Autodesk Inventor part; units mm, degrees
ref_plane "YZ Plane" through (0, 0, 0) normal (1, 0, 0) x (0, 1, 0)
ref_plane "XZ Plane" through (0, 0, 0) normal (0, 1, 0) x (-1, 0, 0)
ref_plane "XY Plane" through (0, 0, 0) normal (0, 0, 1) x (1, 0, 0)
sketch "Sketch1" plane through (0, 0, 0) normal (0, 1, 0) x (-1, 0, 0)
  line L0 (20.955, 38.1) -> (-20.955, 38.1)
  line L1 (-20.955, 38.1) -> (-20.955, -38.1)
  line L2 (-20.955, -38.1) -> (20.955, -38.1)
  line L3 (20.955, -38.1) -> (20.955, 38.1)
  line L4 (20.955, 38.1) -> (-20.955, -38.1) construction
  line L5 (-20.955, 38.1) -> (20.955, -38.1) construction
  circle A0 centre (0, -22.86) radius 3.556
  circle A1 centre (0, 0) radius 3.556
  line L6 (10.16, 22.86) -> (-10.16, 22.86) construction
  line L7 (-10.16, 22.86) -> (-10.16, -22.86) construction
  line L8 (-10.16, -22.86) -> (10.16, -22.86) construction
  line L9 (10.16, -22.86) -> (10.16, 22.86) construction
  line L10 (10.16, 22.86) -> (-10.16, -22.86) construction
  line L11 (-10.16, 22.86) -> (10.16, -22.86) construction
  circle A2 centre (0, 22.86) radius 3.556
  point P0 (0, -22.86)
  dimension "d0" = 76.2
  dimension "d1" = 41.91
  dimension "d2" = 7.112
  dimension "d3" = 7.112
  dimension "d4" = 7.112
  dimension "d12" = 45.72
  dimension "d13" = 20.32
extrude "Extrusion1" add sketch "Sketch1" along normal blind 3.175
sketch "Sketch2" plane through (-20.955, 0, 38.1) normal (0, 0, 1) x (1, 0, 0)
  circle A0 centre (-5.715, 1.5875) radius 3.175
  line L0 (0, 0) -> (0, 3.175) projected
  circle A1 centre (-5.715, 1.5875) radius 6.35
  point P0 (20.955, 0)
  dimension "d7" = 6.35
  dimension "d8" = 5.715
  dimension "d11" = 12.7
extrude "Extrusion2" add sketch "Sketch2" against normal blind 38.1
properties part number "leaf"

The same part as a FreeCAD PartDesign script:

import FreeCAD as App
import Part
import Sketcher
from FreeCAD import Vector
Q = App.Units.Quantity

doc = App.newDocument("Part")
body = doc.addObject("PartDesign::Body", "Body")

sketch1 = doc.addObject("Sketcher::SketchObject", "Sketch")
body.addObject(sketch1)
sketch1.AttachmentSupport = (doc.XZ_Plane, [""])
sketch1.MapMode = "FlatFace"
sketch1.addGeometry([
    Part.LineSegment(Vector(-21, -38.1, 0), Vector(-21, 38.1, 0)),
    Part.LineSegment(Vector(-21, 38.1, 0), Vector(21, 38.1, 0)),
    Part.LineSegment(Vector(21, 38.1, 0), Vector(21, -38.1, 0)),
    Part.LineSegment(Vector(21, -38.1, 0), Vector(-21, -38.1, 0)),
    Part.Circle(Vector(0, -22.9, 0), Vector(0, 0, 1), 3.6),
    Part.Circle(Vector(0, 0, 0), Vector(0, 0, 1), 3.6),
    Part.Circle(Vector(0, 22.9, 0), Vector(0, 0, 1), 3.6),
], False)
sketch1.addConstraint([
    Sketcher.Constraint("Coincident", 0, 2, 1, 1),
    Sketcher.Constraint("Coincident", 1, 2, 2, 1),
    Sketcher.Constraint("Coincident", 2, 2, 3, 1),
    Sketcher.Constraint("Coincident", 3, 2, 0, 1),
    Sketcher.Constraint("Vertical", 0),
    Sketcher.Constraint("Horizontal", 1),
    Sketcher.Constraint("Vertical", 2),
    Sketcher.Constraint("Horizontal", 3),
    Sketcher.Constraint("Coincident", 5, 3, -1, 1),
    Sketcher.Constraint("Equal", 4, 5),
    Sketcher.Constraint("Equal", 5, 6),
    Sketcher.Constraint("Symmetric", 4, 3, 6, 3, -1, 1),
    Sketcher.Constraint("Symmetric", 0, 2, 2, 2, -1, 1),
    Sketcher.Constraint("PointOnObject", 4, 3, -2),
    Sketcher.Constraint("Diameter", 4, Q("0.28 in")),
    Sketcher.Constraint("DistanceY", 0, 1, 0, 2, Q("3 in")),
    Sketcher.Constraint("DistanceX", 1, 1, 1, 2, Q("1.65 in")),
    Sketcher.Constraint("DistanceY", 4, 3, 6, 3, Q("1.8 in")),
])
pad1 = doc.addObject("PartDesign::Pad", "Pad")
body.addObject(pad1)
pad1.Profile = sketch1
pad1.Length = Q("0.125 in")
pad1.Reversed = True

sketch2 = doc.addObject("Sketcher::SketchObject", "Sketch001")
body.addObject(sketch2)
sketch2.AttachmentSupport = (doc.XY_Plane, [""])
sketch2.MapMode = "FlatFace"
sketch2.AttachmentOffset = App.Placement(Vector(0, 0, 1.5 * 25.4), App.Rotation())
sketch2.addGeometry([
    Part.Circle(Vector(-26.7, 1.6, 0), Vector(0, 0, 1), 6.3),
    Part.Circle(Vector(-26.7, 1.6, 0), Vector(0, 0, 1), 3.2),
], False)
sketch2.addConstraint([
    Sketcher.Constraint("Coincident", 1, 3, 0, 3),
    Sketcher.Constraint("Diameter", 0, Q("0.5 in")),
    Sketcher.Constraint("Diameter", 1, Q("0.25 in")),
    Sketcher.Constraint("DistanceX", 0, 3, -1, 1, Q("1.05 in")),
    Sketcher.Constraint("DistanceY", -1, 1, 0, 3, Q("0.0625 in")),
])
pad2 = doc.addObject("PartDesign::Pad", "Pad001")
body.addObject(pad2)
pad2.Profile = sketch2
pad2.Length = Q("1.5 in")
pad2.Reversed = True

doc.recompute()
